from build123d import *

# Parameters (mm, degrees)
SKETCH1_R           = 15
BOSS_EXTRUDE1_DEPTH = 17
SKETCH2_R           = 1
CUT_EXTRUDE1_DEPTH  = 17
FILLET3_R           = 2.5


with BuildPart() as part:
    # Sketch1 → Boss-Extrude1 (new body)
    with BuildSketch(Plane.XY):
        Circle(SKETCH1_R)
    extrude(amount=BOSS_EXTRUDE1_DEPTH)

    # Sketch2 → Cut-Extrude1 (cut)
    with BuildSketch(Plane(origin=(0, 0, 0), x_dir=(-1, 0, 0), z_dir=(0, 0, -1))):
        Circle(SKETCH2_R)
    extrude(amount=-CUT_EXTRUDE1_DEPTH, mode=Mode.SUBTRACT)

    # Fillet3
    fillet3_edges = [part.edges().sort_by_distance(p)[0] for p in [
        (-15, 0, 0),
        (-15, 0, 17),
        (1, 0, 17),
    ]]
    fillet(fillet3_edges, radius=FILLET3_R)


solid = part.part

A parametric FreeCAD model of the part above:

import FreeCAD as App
import Part
import Sketcher
from FreeCAD import Vector


def edges_at(feature, points):
    """Names of the edges that pass closest to the given points."""
    edges = feature.Shape.Edges
    near = lambda p: min(range(len(edges)), key=lambda i: edges[i].distToShape(Part.Vertex(*p))[0])
    return sorted({f"Edge{near(p) + 1}" for p in points})

doc = App.newDocument("Part")
body = doc.addObject("PartDesign::Body", "Body")

# Sketch on XY plane
sketch1 = doc.addObject("Sketcher::SketchObject", "Sketch")
body.addObject(sketch1)
sketch1.AttachmentSupport = (doc.XY_Plane, [""])
sketch1.MapMode = "FlatFace"
sketch1.addGeometry(Part.Circle(Vector(0, 0, 0), Vector(0, 0, 1), 15), False)
sketch1.addConstraint([
    Sketcher.Constraint("Coincident", 0, 3, -1, 1),
    Sketcher.Constraint("Diameter", 0, 30.0),
])
pad1 = doc.addObject("PartDesign::Pad", "Pad")
body.addObject(pad1)
pad1.Profile = sketch1
pad1.Length = 17

# Sketch on XY plane
sketch2 = doc.addObject("Sketcher::SketchObject", "Sketch001")
body.addObject(sketch2)
sketch2.AttachmentSupport = (doc.XY_Plane, [""])
sketch2.MapMode = "FlatFace"
sketch2.addGeometry(Part.Circle(Vector(0, 0, 0), Vector(0, 0, 1), 1), False)
sketch2.addConstraint([
    Sketcher.Constraint("Coincident", 0, 3, -1, 1),
    Sketcher.Constraint("Diameter", 0, 2.0),
])
pocket1 = doc.addObject("PartDesign::Pocket", "Pocket")
body.addObject(pocket1)
pocket1.Profile = sketch2
pocket1.Length = 17
pocket1.Reversed = True
doc.recompute()

fillet = doc.addObject("PartDesign::Fillet", "Fillet")
body.addObject(fillet)
fillet.Base = (pocket1, edges_at(pocket1, [(-15, 0, 0), (-15, 0, 17), (1, 0, 17)]))
fillet.Radius = 2.5

doc.recompute()
